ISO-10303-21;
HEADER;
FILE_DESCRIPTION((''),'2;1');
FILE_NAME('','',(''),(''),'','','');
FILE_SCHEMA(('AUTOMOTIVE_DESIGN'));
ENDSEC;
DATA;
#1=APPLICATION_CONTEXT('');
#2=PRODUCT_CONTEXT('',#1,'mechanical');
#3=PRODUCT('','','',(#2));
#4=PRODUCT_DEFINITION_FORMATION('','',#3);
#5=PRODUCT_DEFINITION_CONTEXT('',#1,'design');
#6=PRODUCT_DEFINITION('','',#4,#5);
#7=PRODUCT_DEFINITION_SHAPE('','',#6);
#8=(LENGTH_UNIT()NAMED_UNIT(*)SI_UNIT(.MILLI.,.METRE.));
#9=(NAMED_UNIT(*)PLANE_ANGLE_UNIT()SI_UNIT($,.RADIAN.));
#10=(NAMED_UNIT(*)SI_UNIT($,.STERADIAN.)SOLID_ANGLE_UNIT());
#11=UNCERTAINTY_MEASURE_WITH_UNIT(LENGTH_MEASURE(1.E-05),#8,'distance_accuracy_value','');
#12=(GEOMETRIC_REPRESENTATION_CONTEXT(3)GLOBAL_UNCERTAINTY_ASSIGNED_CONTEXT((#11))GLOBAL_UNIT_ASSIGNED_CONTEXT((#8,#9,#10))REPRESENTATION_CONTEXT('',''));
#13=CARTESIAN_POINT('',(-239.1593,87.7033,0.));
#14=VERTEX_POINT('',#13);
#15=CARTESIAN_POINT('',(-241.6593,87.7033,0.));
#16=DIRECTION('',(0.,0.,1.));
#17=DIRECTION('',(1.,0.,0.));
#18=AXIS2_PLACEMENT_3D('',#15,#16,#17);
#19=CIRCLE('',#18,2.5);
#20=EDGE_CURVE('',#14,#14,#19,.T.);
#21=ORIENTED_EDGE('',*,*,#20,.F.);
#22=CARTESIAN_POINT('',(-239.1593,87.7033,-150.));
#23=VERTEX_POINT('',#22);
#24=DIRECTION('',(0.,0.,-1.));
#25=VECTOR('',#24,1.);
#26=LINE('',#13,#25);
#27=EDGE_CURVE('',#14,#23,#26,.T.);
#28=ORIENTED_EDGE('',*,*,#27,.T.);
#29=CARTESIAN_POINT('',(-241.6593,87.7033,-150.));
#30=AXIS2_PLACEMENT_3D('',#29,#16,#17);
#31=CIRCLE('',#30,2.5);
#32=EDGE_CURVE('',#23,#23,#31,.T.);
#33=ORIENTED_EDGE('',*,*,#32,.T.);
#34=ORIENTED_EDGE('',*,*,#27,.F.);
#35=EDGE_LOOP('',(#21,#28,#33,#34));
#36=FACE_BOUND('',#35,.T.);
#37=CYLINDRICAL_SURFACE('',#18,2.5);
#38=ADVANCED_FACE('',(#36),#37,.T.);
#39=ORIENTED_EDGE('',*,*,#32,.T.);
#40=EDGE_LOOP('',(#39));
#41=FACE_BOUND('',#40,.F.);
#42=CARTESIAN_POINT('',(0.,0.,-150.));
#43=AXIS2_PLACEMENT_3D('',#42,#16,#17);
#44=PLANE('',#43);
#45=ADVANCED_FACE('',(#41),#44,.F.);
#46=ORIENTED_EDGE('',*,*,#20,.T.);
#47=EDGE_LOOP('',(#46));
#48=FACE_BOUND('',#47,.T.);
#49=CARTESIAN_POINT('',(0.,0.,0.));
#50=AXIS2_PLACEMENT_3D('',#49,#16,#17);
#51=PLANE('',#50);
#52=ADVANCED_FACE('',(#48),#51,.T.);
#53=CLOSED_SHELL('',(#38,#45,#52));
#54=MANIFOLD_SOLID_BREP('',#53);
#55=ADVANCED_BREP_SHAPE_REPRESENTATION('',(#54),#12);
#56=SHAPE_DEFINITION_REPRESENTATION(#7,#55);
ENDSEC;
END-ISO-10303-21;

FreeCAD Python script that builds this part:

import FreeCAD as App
import Part
import Sketcher
from FreeCAD import Vector
Q = App.Units.Quantity

doc = App.newDocument("Part")
body = doc.addObject("PartDesign::Body", "Body")

# Sketch on XY plane
sketch1 = body.newObject("Sketcher::SketchObject", "Sketch")
sketch1.AttachmentSupport = (doc.getObject("XY_Plane"), [""])
sketch1.MapMode = "FlatFace"
sketch1.addGeometry(Part.Circle(Vector(-241.7, 87.7, 0), Vector(0, 0, 1), 2.5), False)
sketch1.addConstraint([
    Sketcher.Constraint("Diameter", 0, Q("5 mm")),
    Sketcher.Constraint("DistanceX", 0, 3, -1, 1, Q("241.6593 mm")),
    Sketcher.Constraint("DistanceY", -1, 1, 0, 3, Q("87.7033 mm")),
])
pad1 = body.newObject("PartDesign::Pad", "Pad")
pad1.Profile = sketch1
pad1.Length = 150
pad1.Reversed = True

doc.recompute()
